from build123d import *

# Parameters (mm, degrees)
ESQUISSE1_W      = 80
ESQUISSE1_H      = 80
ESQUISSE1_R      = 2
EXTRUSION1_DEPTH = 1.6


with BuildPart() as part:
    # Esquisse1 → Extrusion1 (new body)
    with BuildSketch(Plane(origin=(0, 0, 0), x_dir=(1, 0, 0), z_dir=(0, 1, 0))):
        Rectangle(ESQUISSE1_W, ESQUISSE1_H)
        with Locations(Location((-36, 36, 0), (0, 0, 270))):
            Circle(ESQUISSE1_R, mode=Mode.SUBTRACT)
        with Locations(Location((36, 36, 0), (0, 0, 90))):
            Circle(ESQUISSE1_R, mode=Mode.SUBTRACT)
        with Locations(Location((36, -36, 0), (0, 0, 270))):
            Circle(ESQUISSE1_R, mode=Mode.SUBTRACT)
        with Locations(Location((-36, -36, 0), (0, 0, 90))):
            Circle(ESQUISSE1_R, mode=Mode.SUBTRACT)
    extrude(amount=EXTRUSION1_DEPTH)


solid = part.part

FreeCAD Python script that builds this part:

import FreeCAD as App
import Part
import Sketcher

V = App.Vector


def add_polygon(sketch, points):
    """Adds a closed chain of lines whose ends are joined by coincident constraints."""
    first, n = sketch.GeometryCount, len(points)
    for a, b in zip(points, points[1:] + points[:1]):
        sketch.addGeometry(Part.LineSegment(App.Vector(*a, 0), App.Vector(*b, 0)), False)
    for i in range(n):
        sketch.addConstraint(Sketcher.Constraint("Coincident", first + i, 2, first + (i + 1) % n, 1))

doc = App.newDocument("Part")
body = doc.addObject("PartDesign::Body", "Body")

sketch1 = doc.addObject("Sketcher::SketchObject", "Sketch")
body.addObject(sketch1)
sketch1.AttachmentSupport = (doc.XZ_Plane, [""])
sketch1.MapMode = "FlatFace"
add_polygon(sketch1, [(-40, -40), (-40, 40), (40, 40), (40, -40)])
sketch1.addGeometry(Part.Circle(V(-36, 36, 0), V(0, 0, 1), 2), False)
sketch1.addGeometry(Part.Circle(V(36, 36, 0), V(0, 0, 1), 2), False)
sketch1.addGeometry(Part.Circle(V(-36, -36, 0), V(0, 0, 1), 2), False)
sketch1.addGeometry(Part.Circle(V(36, -36, 0), V(0, 0, 1), 2), False)
sketch1.addConstraint(Sketcher.Constraint("Vertical", 0))
sketch1.addConstraint(Sketcher.Constraint("Horizontal", 1))
sketch1.addConstraint(Sketcher.Constraint("Vertical", 2))
sketch1.addConstraint(Sketcher.Constraint("Horizontal", 3))
sketch1.addConstraint(Sketcher.Constraint("Equal", 4, 5))
sketch1.addConstraint(Sketcher.Constraint("Equal", 5, 6))
sketch1.addConstraint(Sketcher.Constraint("Equal", 6, 7))
sketch1.addConstraint(Sketcher.Constraint("Symmetric", 5, 3, 6, 3, -1, 1))
sketch1.addConstraint(Sketcher.Constraint("Symmetric", 4, 3, 7, 3, -1, 1))
sketch1.addConstraint(Sketcher.Constraint("Symmetric", 0, 2, 2, 2, -1, 1))
sketch1.addConstraint(Sketcher.Constraint("Symmetric", 4, 3, 5, 3, -2))
sketch1.addConstraint(Sketcher.Constraint("Equal", 3, 0))
sketch1.addConstraint(Sketcher.Constraint("Diameter", 4, 4.0))
sketch1.addConstraint(Sketcher.Constraint("DistanceX", 1, 1, 1, 2, 80.0))
sketch1.addConstraint(Sketcher.Constraint("DistanceX", 4, 3, -1, 1, 36.0))
sketch1.addConstraint(Sketcher.Constraint("DistanceY", -1, 1, 4, 3, 36.0))
pad1 = doc.addObject("PartDesign::Pad", "Pad")
body.addObject(pad1)
pad1.Profile = sketch1
pad1.Length = 1.6
pad1.Reversed = True

doc.recompute()
